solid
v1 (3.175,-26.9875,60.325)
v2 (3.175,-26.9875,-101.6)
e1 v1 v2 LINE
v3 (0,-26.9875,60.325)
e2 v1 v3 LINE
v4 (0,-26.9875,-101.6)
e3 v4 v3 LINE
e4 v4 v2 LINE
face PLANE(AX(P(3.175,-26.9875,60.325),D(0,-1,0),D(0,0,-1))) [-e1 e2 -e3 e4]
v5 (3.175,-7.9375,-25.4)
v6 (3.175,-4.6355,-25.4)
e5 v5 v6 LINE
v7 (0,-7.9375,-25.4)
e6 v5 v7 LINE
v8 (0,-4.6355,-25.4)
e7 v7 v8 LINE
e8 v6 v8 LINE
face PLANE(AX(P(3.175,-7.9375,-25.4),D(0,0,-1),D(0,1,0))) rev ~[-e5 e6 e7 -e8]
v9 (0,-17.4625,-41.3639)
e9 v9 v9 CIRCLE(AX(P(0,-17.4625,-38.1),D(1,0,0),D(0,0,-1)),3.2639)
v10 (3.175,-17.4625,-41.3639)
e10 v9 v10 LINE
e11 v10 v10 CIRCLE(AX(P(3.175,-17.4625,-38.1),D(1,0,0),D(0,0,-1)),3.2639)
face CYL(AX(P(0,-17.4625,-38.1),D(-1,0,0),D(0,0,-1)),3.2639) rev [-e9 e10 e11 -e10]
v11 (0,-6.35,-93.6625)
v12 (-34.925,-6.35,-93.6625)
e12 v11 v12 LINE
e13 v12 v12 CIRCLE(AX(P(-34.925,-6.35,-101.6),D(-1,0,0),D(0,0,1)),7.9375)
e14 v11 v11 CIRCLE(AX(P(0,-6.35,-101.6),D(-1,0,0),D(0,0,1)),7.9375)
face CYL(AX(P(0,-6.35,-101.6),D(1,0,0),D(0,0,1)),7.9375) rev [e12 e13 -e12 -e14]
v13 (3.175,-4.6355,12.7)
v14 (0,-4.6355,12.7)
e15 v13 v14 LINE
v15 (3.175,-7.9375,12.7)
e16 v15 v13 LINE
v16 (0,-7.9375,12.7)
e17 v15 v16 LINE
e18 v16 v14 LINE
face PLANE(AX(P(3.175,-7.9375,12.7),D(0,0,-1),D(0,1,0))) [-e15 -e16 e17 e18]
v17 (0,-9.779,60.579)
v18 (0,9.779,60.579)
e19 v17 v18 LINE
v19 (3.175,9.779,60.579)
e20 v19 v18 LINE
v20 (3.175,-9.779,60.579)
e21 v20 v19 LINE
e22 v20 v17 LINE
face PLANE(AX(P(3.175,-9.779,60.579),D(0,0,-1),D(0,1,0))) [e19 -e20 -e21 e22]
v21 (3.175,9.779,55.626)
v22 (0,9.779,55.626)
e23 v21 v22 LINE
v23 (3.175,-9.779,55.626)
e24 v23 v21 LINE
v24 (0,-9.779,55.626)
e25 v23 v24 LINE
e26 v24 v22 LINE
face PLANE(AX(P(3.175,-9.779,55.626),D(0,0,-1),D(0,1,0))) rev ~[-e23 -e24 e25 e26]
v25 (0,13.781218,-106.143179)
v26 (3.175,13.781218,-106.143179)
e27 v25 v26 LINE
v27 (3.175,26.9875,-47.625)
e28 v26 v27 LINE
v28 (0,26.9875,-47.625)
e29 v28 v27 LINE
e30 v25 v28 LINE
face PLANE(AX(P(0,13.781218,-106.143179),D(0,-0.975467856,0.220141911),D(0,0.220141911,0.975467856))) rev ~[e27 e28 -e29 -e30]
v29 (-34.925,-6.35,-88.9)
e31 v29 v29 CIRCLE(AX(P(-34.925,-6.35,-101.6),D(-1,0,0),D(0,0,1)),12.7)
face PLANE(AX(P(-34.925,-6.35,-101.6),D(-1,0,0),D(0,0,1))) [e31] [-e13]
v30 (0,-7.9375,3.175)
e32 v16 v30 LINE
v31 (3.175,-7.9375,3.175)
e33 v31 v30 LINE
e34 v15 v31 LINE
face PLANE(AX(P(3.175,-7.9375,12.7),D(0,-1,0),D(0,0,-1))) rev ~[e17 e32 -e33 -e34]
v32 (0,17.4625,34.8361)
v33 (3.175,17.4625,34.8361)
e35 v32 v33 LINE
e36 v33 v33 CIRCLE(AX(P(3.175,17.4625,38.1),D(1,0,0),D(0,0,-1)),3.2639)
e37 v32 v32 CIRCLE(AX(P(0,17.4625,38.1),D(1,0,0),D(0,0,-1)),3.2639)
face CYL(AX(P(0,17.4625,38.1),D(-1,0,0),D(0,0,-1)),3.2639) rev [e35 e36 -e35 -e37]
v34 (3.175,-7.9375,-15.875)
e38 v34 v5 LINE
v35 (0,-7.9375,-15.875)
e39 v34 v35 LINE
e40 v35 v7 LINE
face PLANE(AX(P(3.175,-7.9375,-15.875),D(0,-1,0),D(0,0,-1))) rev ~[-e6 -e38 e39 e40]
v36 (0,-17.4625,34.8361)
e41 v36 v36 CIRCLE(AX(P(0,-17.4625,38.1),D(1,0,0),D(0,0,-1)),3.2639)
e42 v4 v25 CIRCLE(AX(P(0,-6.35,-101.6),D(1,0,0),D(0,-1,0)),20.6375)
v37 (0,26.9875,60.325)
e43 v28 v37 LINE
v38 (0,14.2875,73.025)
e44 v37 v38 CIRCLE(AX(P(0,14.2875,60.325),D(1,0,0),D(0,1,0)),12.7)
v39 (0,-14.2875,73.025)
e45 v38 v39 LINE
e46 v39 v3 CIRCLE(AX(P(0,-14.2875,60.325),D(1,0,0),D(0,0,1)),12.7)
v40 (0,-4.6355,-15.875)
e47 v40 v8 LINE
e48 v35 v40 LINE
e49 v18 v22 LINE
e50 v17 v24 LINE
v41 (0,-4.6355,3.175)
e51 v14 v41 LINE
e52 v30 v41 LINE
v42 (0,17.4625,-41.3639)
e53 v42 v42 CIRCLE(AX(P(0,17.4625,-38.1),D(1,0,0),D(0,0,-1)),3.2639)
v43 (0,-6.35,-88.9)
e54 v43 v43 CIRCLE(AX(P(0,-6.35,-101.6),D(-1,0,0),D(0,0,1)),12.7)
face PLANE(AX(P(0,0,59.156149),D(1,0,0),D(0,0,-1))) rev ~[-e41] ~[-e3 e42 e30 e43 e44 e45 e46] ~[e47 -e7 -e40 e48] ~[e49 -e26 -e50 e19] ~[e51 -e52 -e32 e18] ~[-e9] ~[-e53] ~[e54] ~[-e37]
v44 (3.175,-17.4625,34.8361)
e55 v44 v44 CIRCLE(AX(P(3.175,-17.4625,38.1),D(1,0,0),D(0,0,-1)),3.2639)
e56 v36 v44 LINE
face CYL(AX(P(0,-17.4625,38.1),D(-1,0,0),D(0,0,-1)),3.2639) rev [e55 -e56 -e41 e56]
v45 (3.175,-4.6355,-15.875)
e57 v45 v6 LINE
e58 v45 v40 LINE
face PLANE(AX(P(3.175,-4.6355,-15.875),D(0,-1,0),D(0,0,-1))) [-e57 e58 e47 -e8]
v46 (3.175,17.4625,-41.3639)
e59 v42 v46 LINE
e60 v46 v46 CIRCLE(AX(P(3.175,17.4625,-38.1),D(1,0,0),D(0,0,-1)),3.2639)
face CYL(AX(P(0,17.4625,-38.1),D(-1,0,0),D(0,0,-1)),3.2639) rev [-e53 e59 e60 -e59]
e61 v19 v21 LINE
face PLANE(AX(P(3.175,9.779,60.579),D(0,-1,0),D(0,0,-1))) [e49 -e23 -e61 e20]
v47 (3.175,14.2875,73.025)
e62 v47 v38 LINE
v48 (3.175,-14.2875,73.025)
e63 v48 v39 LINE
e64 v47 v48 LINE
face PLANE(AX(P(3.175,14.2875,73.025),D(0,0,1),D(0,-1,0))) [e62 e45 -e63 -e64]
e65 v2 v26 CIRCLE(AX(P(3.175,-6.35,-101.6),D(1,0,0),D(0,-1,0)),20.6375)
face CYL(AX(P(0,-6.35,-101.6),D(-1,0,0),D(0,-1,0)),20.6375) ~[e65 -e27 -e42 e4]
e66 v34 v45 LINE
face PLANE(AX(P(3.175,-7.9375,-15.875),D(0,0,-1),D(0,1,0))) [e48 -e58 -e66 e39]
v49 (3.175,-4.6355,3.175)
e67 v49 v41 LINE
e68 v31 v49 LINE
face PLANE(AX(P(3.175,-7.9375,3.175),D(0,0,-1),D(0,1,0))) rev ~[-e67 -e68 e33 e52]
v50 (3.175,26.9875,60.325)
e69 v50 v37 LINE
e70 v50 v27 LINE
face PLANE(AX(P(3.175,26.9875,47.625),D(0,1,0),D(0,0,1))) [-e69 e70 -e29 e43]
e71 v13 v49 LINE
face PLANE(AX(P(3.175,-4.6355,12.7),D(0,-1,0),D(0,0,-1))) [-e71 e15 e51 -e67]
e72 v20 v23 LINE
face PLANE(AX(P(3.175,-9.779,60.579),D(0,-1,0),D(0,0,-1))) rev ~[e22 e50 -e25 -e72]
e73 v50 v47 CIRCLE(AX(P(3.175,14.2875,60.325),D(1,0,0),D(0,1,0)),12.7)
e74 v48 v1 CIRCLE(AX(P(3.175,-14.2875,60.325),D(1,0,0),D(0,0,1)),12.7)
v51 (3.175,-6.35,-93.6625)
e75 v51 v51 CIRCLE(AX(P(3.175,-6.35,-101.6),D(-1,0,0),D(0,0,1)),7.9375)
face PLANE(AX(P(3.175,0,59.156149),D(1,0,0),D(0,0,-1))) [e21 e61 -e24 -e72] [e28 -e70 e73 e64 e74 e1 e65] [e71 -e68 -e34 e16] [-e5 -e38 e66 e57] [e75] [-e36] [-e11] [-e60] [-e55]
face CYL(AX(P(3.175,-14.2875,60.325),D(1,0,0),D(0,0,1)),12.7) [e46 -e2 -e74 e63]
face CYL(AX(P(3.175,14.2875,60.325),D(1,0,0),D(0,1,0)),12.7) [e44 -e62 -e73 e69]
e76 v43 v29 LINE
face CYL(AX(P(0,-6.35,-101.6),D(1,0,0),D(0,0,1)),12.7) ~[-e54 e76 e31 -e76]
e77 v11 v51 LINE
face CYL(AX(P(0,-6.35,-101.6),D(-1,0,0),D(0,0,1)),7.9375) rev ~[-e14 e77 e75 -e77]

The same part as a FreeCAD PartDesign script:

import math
import FreeCAD as App
import Part
import Sketcher
from FreeCAD import Vector
Q = App.Units.Quantity

doc = App.newDocument("Part")
body = doc.addObject("PartDesign::Body", "Body")

# Sketch on YZ plane
sketch1 = body.newObject("Sketcher::SketchObject", "Sketch")
sketch1.AttachmentSupport = (doc.getObject("YZ_Plane"), [""])
sketch1.MapMode = "FlatFace"
sketch1.addGeometry(Part.LineSegment(Vector(13.8, -106.1, 0), Vector(27, -47.6, 0)), False)
sketch1.addGeometry(Part.LineSegment(Vector(27, -47.6, 0), Vector(27, 47.6, 0)), False)
sketch1.addGeometry(Part.LineSegment(Vector(27, 47.6, 0), Vector(-27, 47.6, 0)), False)
sketch1.addGeometry(Part.LineSegment(Vector(-27, 47.6, 0), Vector(-27, -101.6, 0)), False)
sketch1.addGeometry(Part.ArcOfCircle(Part.Circle(Vector(-6.3, -101.6, 0), Vector(0, 0, 1), 20.6), math.radians(180), math.radians(347)), False)
sketch1.addGeometry(Part.Circle(Vector(-17.5, 38.1, 0), Vector(0, 0, 1), 3.3), False)
sketch1.addGeometry(Part.Circle(Vector(-17.5, -38.1, 0), Vector(0, 0, 1), 3.3), False)
sketch1.addGeometry(Part.Circle(Vector(-6.3, -101.6, 0), Vector(0, 0, 1), 12.7), False)
sketch1.addGeometry(Part.Circle(Vector(17.5, 38.1, 0), Vector(0, 0, 1), 3.3), False)
sketch1.addGeometry(Part.Circle(Vector(17.5, -38.1, 0), Vector(0, 0, 1), 3.3), False)
sketch1.addConstraint(Sketcher.Constraint("Coincident", 0, 2, 1, 1))
sketch1.addConstraint(Sketcher.Constraint("Coincident", 1, 2, 2, 1))
sketch1.addConstraint(Sketcher.Constraint("Coincident", 2, 2, 3, 1))
sketch1.addConstraint(Sketcher.Constraint("Tangent", 3, 2, 4, 1))
sketch1.addConstraint(Sketcher.Constraint("Tangent", 4, 2, 0, 1))
sketch1.addConstraint(Sketcher.Constraint("Vertical", 1))
sketch1.addConstraint(Sketcher.Constraint("Horizontal", 2))
sketch1.addConstraint(Sketcher.Constraint("Vertical", 3))
sketch1.addConstraint(Sketcher.Constraint("Coincident", 7, 3, 4, 3))
sketch1.addConstraint(Sketcher.Constraint("Equal", 5, 6))
sketch1.addConstraint(Sketcher.Constraint("Equal", 6, 8))
sketch1.addConstraint(Sketcher.Constraint("Equal", 8, 9))
sketch1.addConstraint(Sketcher.Constraint("Symmetric", 6, 3, 8, 3, -1, 1))
sketch1.addConstraint(Sketcher.Constraint("Symmetric", 5, 3, 9, 3, -1, 1))
sketch1.addConstraint(Sketcher.Constraint("Symmetric", 0, 2, 2, 2, -1, 1))
sketch1.addConstraint(Sketcher.Constraint("Symmetric", 5, 3, 8, 3, -2))
sketch1.addConstraint(Sketcher.Constraint("Diameter", 7, Q("1 in")))
sketch1.addConstraint(Sketcher.Constraint("Diameter", 5, Q("0.257 in")))
sketch1.addConstraint(Sketcher.Constraint("DistanceY", 4, 3, -1, 1, Q("4 in")))
sketch1.addConstraint(Sketcher.Constraint("Radius", 4, Q("0.8125 in")))
sketch1.addConstraint(Sketcher.Constraint("DistanceY", 6, 3, 5, 3, Q("3 in")))
sketch1.addConstraint(Sketcher.Constraint("DistanceY", 1, 1, 1, 2, Q("3.75 in")))
sketch1.addConstraint(Sketcher.Constraint("DistanceX", 2, 2, 2, 1, Q("2.125 in")))
sketch1.addConstraint(Sketcher.Constraint("DistanceX", 6, 3, 0, 2, Q("1.75 in")))
pad1 = body.newObject("PartDesign::Pad", "Pad")
pad1.Profile = sketch1
pad1.Length = Q("0.125 in")

# Sketch on YZ plane
sketch2 = body.newObject("Sketcher::SketchObject", "Sketch001")
sketch2.AttachmentSupport = (doc.getObject("YZ_Plane"), [""])
sketch2.MapMode = "FlatFace"
sketch2.addGeometry(Part.Circle(Vector(-6, -102, 0), Vector(0, 0, 1), 13), False)
sketch2.addGeometry(Part.Circle(Vector(-6, -102, 0), Vector(0, 0, 1), 8), False)
sketch2.addConstraint(Sketcher.Constraint("Coincident", 1, 3, 0, 3))
sketch2.addConstraint(Sketcher.Constraint("Diameter", 0, Q("1 in")))
sketch2.addConstraint(Sketcher.Constraint("Diameter", 1, Q("0.625 in")))
sketch2.addConstraint(Sketcher.Constraint("DistanceY", 0, 3, -1, 1, Q("4 in")))
sketch2.addConstraint(Sketcher.Constraint("DistanceX", 0, 3, -1, 1, Q("0.25 in")))
pad2 = body.newObject("PartDesign::Pad", "Pad001")
pad2.Profile = sketch2
pad2.Type = "TwoLengths"
pad2.Length = Q("1.375 in")
pad2.Length2 = Q("0.125 in")
pad2.Reversed = True

# Sketch on YZ plane
sketch3 = body.newObject("Sketcher::SketchObject", "Sketch002")
sketch3.AttachmentSupport = (doc.getObject("YZ_Plane"), [""])
sketch3.MapMode = "FlatFace"
sketch3.AttachmentOffset = App.Placement(Vector(0, 0, 0.125 * 25.4), App.Rotation())
sketch3.addGeometry(Part.LineSegment(Vector(27, 47.6, 0), Vector(27, 60.3, 0)), False)
sketch3.addGeometry(Part.ArcOfCircle(Part.Circle(Vector(14.3, 60.3, 0), Vector(0, 0, 1), 12.7), math.radians(0), math.radians(90)), False)
sketch3.addGeometry(Part.LineSegment(Vector(14.3, 73, 0), Vector(-14.3, 73, 0)), False)
sketch3.addGeometry(Part.ArcOfCircle(Part.Circle(Vector(-14.3, 60.3, 0), Vector(0, 0, 1), 12.7), math.radians(90), math.radians(180)), False)
sketch3.addGeometry(Part.LineSegment(Vector(-27, 60.3, 0), Vector(-27, 47.6, 0)), False)
sketch3.addGeometry(Part.LineSegment(Vector(-27, 47.6, 0), Vector(27, 47.6, 0)), False)
sketch3.addGeometry(Part.LineSegment(Vector(-9.8, 55.6, 0), Vector(-9.8, 60.6, 0)), False)
sketch3.addGeometry(Part.LineSegment(Vector(-9.8, 60.6, 0), Vector(9.8, 60.6, 0)), False)
sketch3.addGeometry(Part.LineSegment(Vector(9.8, 60.6, 0), Vector(9.8, 55.6, 0)), False)
sketch3.addGeometry(Part.LineSegment(Vector(9.8, 55.6, 0), Vector(-9.8, 55.6, 0)), False)
sketch3.addConstraint(Sketcher.Constraint("Tangent", 0, 2, 1, 1))
sketch3.addConstraint(Sketcher.Constraint("Tangent", 1, 2, 2, 1))
sketch3.addConstraint(Sketcher.Constraint("Tangent", 2, 2, 3, 1))
sketch3.addConstraint(Sketcher.Constraint("Tangent", 3, 2, 4, 1))
sketch3.addConstraint(Sketcher.Constraint("Coincident", 4, 2, 5, 1))
sketch3.addConstraint(Sketcher.Constraint("Coincident", 5, 2, 0, 1))
sketch3.addConstraint(Sketcher.Constraint("Coincident", 6, 2, 7, 1))
sketch3.addConstraint(Sketcher.Constraint("Coincident", 7, 2, 8, 1))
sketch3.addConstraint(Sketcher.Constraint("Coincident", 8, 2, 9, 1))
sketch3.addConstraint(Sketcher.Constraint("Coincident", 9, 2, 6, 1))
sketch3.addConstraint(Sketcher.Constraint("Vertical", 0))
sketch3.addConstraint(Sketcher.Constraint("Horizontal", 2))
sketch3.addConstraint(Sketcher.Constraint("Vertical", 4))
sketch3.addConstraint(Sketcher.Constraint("Horizontal", 5))
sketch3.addConstraint(Sketcher.Constraint("Vertical", 6))
sketch3.addConstraint(Sketcher.Constraint("Horizontal", 7))
sketch3.addConstraint(Sketcher.Constraint("Vertical", 8))
sketch3.addConstraint(Sketcher.Constraint("Horizontal", 9))
sketch3.addConstraint(Sketcher.Constraint("Equal", 1, 3))
sketch3.addConstraint(Sketcher.Constraint("Radius", 1, Q("0.5 in")))
sketch3.addConstraint(Sketcher.Constraint("DistanceY", 0, 1, 0, 2, Q("0.5 in")))
sketch3.addConstraint(Sketcher.Constraint("DistanceX", 7, 1, 7, 2, Q("0.77 in")))
sketch3.addConstraint(Sketcher.Constraint("DistanceX", 2, 2, 2, 1, Q("1.125 in")))
sketch3.addConstraint(Sketcher.Constraint("DistanceY", 6, 1, 6, 2, Q("0.195 in")))
sketch3.addConstraint(Sketcher.Constraint("DistanceY", -1, 1, 8, 2, Q("2.19 in")))
sketch3.addConstraint(Sketcher.Constraint("DistanceY", 3, 3, 6, 2, Q("0.01 in")))
sketch3.addConstraint(Sketcher.Constraint("DistanceX", -1, 1, 1, 3, Q("0.5625 in")))
sketch3.addConstraint(Sketcher.Constraint("DistanceX", 6, 2, -1, 1, Q("0.385 in")))
pad3 = body.newObject("PartDesign::Pad", "Pad002")
pad3.Profile = sketch3
pad3.Length = Q("0.125 in")
pad3.Reversed = True

# Sketch on YZ plane
sketch4 = body.newObject("Sketcher::SketchObject", "Sketch003")
sketch4.AttachmentSupport = (doc.getObject("YZ_Plane"), [""])
sketch4.MapMode = "FlatFace"
sketch4.AttachmentOffset = App.Placement(Vector(0, 0, 0.125 * 25.4), App.Rotation())
sketch4.addGeometry(Part.LineSegment(Vector(-4.6, -15.9, 0), Vector(-7.9, -15.9, 0)), False)
sketch4.addGeometry(Part.LineSegment(Vector(-7.9, -15.9, 0), Vector(-7.9, -25.4, 0)), False)
sketch4.addGeometry(Part.LineSegment(Vector(-7.9, -25.4, 0), Vector(-4.6, -25.4, 0)), False)
sketch4.addGeometry(Part.LineSegment(Vector(-4.6, -25.4, 0), Vector(-4.6, -15.9, 0)), False)
sketch4.addGeometry(Part.LineSegment(Vector(-4.6, 12.7, 0), Vector(-7.9, 12.7, 0)), False)
sketch4.addGeometry(Part.LineSegment(Vector(-7.9, 12.7, 0), Vector(-7.9, 3.2, 0)), False)
sketch4.addGeometry(Part.LineSegment(Vector(-7.9, 3.2, 0), Vector(-4.6, 3.2, 0)), False)
sketch4.addGeometry(Part.LineSegment(Vector(-4.6, 3.2, 0), Vector(-4.6, 12.7, 0)), False)
sketch4.addConstraint(Sketcher.Constraint("Coincident", 0, 2, 1, 1))
sketch4.addConstraint(Sketcher.Constraint("Coincident", 1, 2, 2, 1))
sketch4.addConstraint(Sketcher.Constraint("Coincident", 2, 2, 3, 1))
sketch4.addConstraint(Sketcher.Constraint("Coincident", 3, 2, 0, 1))
sketch4.addConstraint(Sketcher.Constraint("Coincident", 4, 2, 5, 1))
sketch4.addConstraint(Sketcher.Constraint("Coincident", 5, 2, 6, 1))
sketch4.addConstraint(Sketcher.Constraint("Coincident", 6, 2, 7, 1))
sketch4.addConstraint(Sketcher.Constraint("Coincident", 7, 2, 4, 1))
sketch4.addConstraint(Sketcher.Constraint("Horizontal", 0))
sketch4.addConstraint(Sketcher.Constraint("Vertical", 1))
sketch4.addConstraint(Sketcher.Constraint("Horizontal", 2))
sketch4.addConstraint(Sketcher.Constraint("Vertical", 3))
sketch4.addConstraint(Sketcher.Constraint("Horizontal", 4))
sketch4.addConstraint(Sketcher.Constraint("Vertical", 5))
sketch4.addConstraint(Sketcher.Constraint("Horizontal", 6))
sketch4.addConstraint(Sketcher.Constraint("Vertical", 7))
sketch4.addConstraint(Sketcher.Constraint("Vertical", 1, 2, 4, 2))
sketch4.addConstraint(Sketcher.Constraint("Vertical", 3, 2, 6, 2))
sketch4.addConstraint(Sketcher.Constraint("Equal", 3, 5))
sketch4.addConstraint(Sketcher.Constraint("DistanceY", 1, 2, -1, 1, Q("1 in")))
sketch4.addConstraint(Sketcher.Constraint("DistanceX", 0, 2, 0, 1, Q("0.13 in")))
sketch4.addConstraint(Sketcher.Constraint("DistanceY", -1, 1, 4, 2, Q("0.5 in")))
sketch4.addConstraint(Sketcher.Constraint("DistanceY", 1, 2, 1, 1, Q("0.375 in")))
sketch4.addConstraint(Sketcher.Constraint("DistanceX", 0, 2, -1, 1, Q("0.3125 in")))
pocket1 = body.newObject("PartDesign::Pocket", "Pocket")
pocket1.Profile = sketch4
pocket1.Type = "ThroughAll"

doc.recompute()
